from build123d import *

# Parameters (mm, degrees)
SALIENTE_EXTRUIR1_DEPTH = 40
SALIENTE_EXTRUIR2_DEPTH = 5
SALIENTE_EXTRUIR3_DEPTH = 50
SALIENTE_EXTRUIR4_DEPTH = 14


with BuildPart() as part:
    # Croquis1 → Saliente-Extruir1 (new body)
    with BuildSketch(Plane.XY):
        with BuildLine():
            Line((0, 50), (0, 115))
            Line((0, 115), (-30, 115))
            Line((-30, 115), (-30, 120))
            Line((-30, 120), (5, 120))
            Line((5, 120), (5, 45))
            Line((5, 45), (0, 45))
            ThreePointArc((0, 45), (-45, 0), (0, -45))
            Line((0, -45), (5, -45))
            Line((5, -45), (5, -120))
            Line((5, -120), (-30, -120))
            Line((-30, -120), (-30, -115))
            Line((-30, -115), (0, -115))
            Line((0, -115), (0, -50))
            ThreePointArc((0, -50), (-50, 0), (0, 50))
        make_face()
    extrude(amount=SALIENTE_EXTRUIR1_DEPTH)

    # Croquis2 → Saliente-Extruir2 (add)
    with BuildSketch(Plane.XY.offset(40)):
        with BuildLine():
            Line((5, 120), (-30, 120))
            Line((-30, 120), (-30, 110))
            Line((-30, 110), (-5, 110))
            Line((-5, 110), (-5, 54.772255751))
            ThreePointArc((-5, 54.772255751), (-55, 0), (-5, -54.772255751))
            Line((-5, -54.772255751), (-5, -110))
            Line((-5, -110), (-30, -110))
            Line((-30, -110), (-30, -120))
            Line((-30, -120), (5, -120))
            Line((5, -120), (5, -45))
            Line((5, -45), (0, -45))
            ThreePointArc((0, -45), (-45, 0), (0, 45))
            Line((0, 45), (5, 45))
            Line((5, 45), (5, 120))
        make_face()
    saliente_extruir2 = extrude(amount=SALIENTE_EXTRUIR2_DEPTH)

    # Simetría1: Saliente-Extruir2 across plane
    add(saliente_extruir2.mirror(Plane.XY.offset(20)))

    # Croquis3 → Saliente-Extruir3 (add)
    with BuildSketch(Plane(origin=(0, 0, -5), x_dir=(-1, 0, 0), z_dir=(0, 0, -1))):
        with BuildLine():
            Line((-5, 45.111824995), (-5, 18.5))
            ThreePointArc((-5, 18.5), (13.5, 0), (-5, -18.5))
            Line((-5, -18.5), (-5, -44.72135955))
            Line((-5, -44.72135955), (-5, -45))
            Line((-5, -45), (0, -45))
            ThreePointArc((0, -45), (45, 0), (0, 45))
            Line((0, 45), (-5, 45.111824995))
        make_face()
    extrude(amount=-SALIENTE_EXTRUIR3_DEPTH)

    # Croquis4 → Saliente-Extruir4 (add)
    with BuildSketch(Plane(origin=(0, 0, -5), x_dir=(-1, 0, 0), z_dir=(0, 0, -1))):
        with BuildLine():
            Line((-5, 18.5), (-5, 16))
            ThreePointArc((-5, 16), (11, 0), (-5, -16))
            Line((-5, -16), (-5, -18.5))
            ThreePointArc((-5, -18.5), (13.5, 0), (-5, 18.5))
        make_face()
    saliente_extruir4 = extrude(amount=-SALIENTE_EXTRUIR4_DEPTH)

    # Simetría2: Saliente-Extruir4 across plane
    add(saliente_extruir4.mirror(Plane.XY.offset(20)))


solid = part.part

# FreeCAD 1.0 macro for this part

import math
import FreeCAD as App
import Part
import Sketcher

V = App.Vector

doc = App.newDocument("Part")
body = doc.addObject("PartDesign::Body", "Body")

sketch1 = body.newObject("Sketcher::SketchObject", "Sketch")
sketch1.AttachmentSupport = (doc.getObject("XY_Plane"), [""])
sketch1.MapMode = "FlatFace"
sketch1.addGeometry(Part.LineSegment(V(0, 115, 0), V(0, 50, 0)), False)
sketch1.addGeometry(Part.ArcOfCircle(Part.Circle(V(0, 0, 0), V(0, 0, 1), 50), math.radians(90), math.radians(270)), False)
sketch1.addGeometry(Part.LineSegment(V(0, -50, 0), V(0, -115, 0)), False)
sketch1.addGeometry(Part.LineSegment(V(0, -115, 0), V(-30, -115, 0)), False)
sketch1.addGeometry(Part.LineSegment(V(-30, -115, 0), V(-30, -120, 0)), False)
sketch1.addGeometry(Part.LineSegment(V(-30, -120, 0), V(5, -120, 0)), False)
sketch1.addGeometry(Part.LineSegment(V(5, -120, 0), V(5, -45, 0)), False)
sketch1.addGeometry(Part.LineSegment(V(5, -45, 0), V(0, -45, 0)), False)
sketch1.addGeometry(Part.ArcOfCircle(Part.Circle(V(0, 0, 0), V(0, 0, 1), 45), math.radians(90), math.radians(270)), False)
sketch1.addGeometry(Part.LineSegment(V(0, 45, 0), V(5, 45, 0)), False)
sketch1.addGeometry(Part.LineSegment(V(5, 45, 0), V(5, 120, 0)), False)
sketch1.addGeometry(Part.LineSegment(V(5, 120, 0), V(-30, 120, 0)), False)
sketch1.addGeometry(Part.LineSegment(V(-30, 120, 0), V(-30, 115, 0)), False)
sketch1.addGeometry(Part.LineSegment(V(-30, 115, 0), V(0, 115, 0)), False)
sketch1.addConstraint(Sketcher.Constraint("Coincident", 0, 2, 1, 1))
sketch1.addConstraint(Sketcher.Constraint("Coincident", 1, 2, 2, 1))
sketch1.addConstraint(Sketcher.Constraint("Coincident", 2, 2, 3, 1))
sketch1.addConstraint(Sketcher.Constraint("Coincident", 3, 2, 4, 1))
sketch1.addConstraint(Sketcher.Constraint("Coincident", 4, 2, 5, 1))
sketch1.addConstraint(Sketcher.Constraint("Coincident", 5, 2, 6, 1))
sketch1.addConstraint(Sketcher.Constraint("Coincident", 6, 2, 7, 1))
sketch1.addConstraint(Sketcher.Constraint("Tangent", 7, 2, 8, 2))
sketch1.addConstraint(Sketcher.Constraint("Tangent", 8, 1, 9, 1))
sketch1.addConstraint(Sketcher.Constraint("Coincident", 9, 2, 10, 1))
sketch1.addConstraint(Sketcher.Constraint("Coincident", 10, 2, 11, 1))
sketch1.addConstraint(Sketcher.Constraint("Coincident", 11, 2, 12, 1))
sketch1.addConstraint(Sketcher.Constraint("Coincident", 12, 2, 13, 1))
sketch1.addConstraint(Sketcher.Constraint("Coincident", 13, 2, 0, 1))
sketch1.addConstraint(Sketcher.Constraint("Vertical", 0))
sketch1.addConstraint(Sketcher.Constraint("Vertical", 2))
sketch1.addConstraint(Sketcher.Constraint("Horizontal", 3))
sketch1.addConstraint(Sketcher.Constraint("Vertical", 4))
sketch1.addConstraint(Sketcher.Constraint("Horizontal", 5))
sketch1.addConstraint(Sketcher.Constraint("Vertical", 6))
sketch1.addConstraint(Sketcher.Constraint("Horizontal", 7))
sketch1.addConstraint(Sketcher.Constraint("Horizontal", 9))
sketch1.addConstraint(Sketcher.Constraint("Vertical", 10))
sketch1.addConstraint(Sketcher.Constraint("Horizontal", 11))
sketch1.addConstraint(Sketcher.Constraint("Vertical", 12))
sketch1.addConstraint(Sketcher.Constraint("Horizontal", 13))
sketch1.addConstraint(Sketcher.Constraint("Coincident", 1, 3, -1, 1))
sketch1.addConstraint(Sketcher.Constraint("Coincident", 8, 3, -1, 1))
sketch1.addConstraint(Sketcher.Constraint("Symmetric", 2, 2, 13, 2, -1, 1))
sketch1.addConstraint(Sketcher.Constraint("Symmetric", 5, 2, 10, 2, -1))
sketch1.addConstraint(Sketcher.Constraint("PointOnObject", 0, 2, -2))
sketch1.addConstraint(Sketcher.Constraint("Vertical", 4, 2, 11, 2))
sketch1.addConstraint(Sketcher.Constraint("Equal", 9, 4))
sketch1.addConstraint(Sketcher.Constraint("Radius", 1, 50.0))
sketch1.addConstraint(Sketcher.Constraint("Radius", 8, 45.0))
sketch1.addConstraint(Sketcher.Constraint("DistanceX", 3, 2, 3, 1, 30.0))
sketch1.addConstraint(Sketcher.Constraint("DistanceX", 5, 1, 5, 2, 35.0))
sketch1.addConstraint(Sketcher.Constraint("DistanceY", 0, 2, 0, 1, 65.0))
pad1 = body.newObject("PartDesign::Pad", "Pad")
pad1.Profile = sketch1
pad1.Length = 40

sketch2 = body.newObject("Sketcher::SketchObject", "Sketch001")
sketch2.AttachmentSupport = (doc.getObject("XY_Plane"), [""])
sketch2.MapMode = "FlatFace"
sketch2.AttachmentOffset = App.Placement(V(0, 0, 40), App.Rotation())
sketch2.addGeometry(Part.LineSegment(V(5, 120, 0), V(-30, 120, 0)), False)
sketch2.addGeometry(Part.LineSegment(V(-30, 120, 0), V(-30, 110, 0)), False)
sketch2.addGeometry(Part.LineSegment(V(-30, 110, 0), V(-5, 110, 0)), False)
sketch2.addGeometry(Part.LineSegment(V(-5, 110, 0), V(-5, 55, 0)), False)
sketch2.addGeometry(Part.ArcOfCircle(Part.Circle(V(0, 0, 0), V(0, 0, 1), 55), math.radians(95), math.radians(265)), False)
sketch2.addGeometry(Part.LineSegment(V(-5, -55, 0), V(-5, -110, 0)), False)
sketch2.addGeometry(Part.LineSegment(V(-5, -110, 0), V(-30, -110, 0)), False)
sketch2.addGeometry(Part.LineSegment(V(-30, -110, 0), V(-30, -120, 0)), False)
sketch2.addGeometry(Part.LineSegment(V(-30, -120, 0), V(5, -120, 0)), False)
sketch2.addGeometry(Part.LineSegment(V(5, -120, 0), V(5, -45, 0)), False)
sketch2.addGeometry(Part.LineSegment(V(5, -45, 0), V(0, -45, 0)), False)
sketch2.addGeometry(Part.ArcOfCircle(Part.Circle(V(0, 0, 0), V(0, 0, 1), 45), math.radians(90), math.radians(270)), False)
sketch2.addGeometry(Part.LineSegment(V(0, 45, 0), V(5, 45, 0)), False)
sketch2.addGeometry(Part.LineSegment(V(5, 45, 0), V(5, 120, 0)), False)
sketch2.addConstraint(Sketcher.Constraint("Coincident", 0, 2, 1, 1))
sketch2.addConstraint(Sketcher.Constraint("Coincident", 1, 2, 2, 1))
sketch2.addConstraint(Sketcher.Constraint("Coincident", 2, 2, 3, 1))
sketch2.addConstraint(Sketcher.Constraint("Coincident", 3, 2, 4, 1))
sketch2.addConstraint(Sketcher.Constraint("Coincident", 4, 2, 5, 1))
sketch2.addConstraint(Sketcher.Constraint("Coincident", 5, 2, 6, 1))
sketch2.addConstraint(Sketcher.Constraint("Coincident", 6, 2, 7, 1))
sketch2.addConstraint(Sketcher.Constraint("Coincident", 7, 2, 8, 1))
sketch2.addConstraint(Sketcher.Constraint("Coincident", 8, 2, 9, 1))
sketch2.addConstraint(Sketcher.Constraint("Coincident", 9, 2, 10, 1))
sketch2.addConstraint(Sketcher.Constraint("Tangent", 10, 2, 11, 2))
sketch2.addConstraint(Sketcher.Constraint("Tangent", 11, 1, 12, 1))
sketch2.addConstraint(Sketcher.Constraint("Coincident", 12, 2, 13, 1))
sketch2.addConstraint(Sketcher.Constraint("Coincident", 13, 2, 0, 1))
sketch2.addConstraint(Sketcher.Constraint("Horizontal", 0))
sketch2.addConstraint(Sketcher.Constraint("Vertical", 1))
sketch2.addConstraint(Sketcher.Constraint("Horizontal", 2))
sketch2.addConstraint(Sketcher.Constraint("Vertical", 3))
sketch2.addConstraint(Sketcher.Constraint("Vertical", 5))
sketch2.addConstraint(Sketcher.Constraint("Horizontal", 6))
sketch2.addConstraint(Sketcher.Constraint("Vertical", 7))
sketch2.addConstraint(Sketcher.Constraint("Horizontal", 8))
sketch2.addConstraint(Sketcher.Constraint("Vertical", 9))
sketch2.addConstraint(Sketcher.Constraint("Horizontal", 10))
sketch2.addConstraint(Sketcher.Constraint("Horizontal", 12))
sketch2.addConstraint(Sketcher.Constraint("Vertical", 13))
sketch2.addConstraint(Sketcher.Constraint("Coincident", 4, 3, -1, 1))
sketch2.addConstraint(Sketcher.Constraint("Coincident", 11, 3, -1, 1))
sketch2.addConstraint(Sketcher.Constraint("Symmetric", 2, 2, 5, 2, -1))
sketch2.addConstraint(Sketcher.Constraint("Symmetric", 0, 2, 7, 2, -1))
sketch2.addConstraint(Sketcher.Constraint("Vertical", 9, 2, 12, 2))
sketch2.addConstraint(Sketcher.Constraint("Radius", 4, 55.0))
sketch2.addConstraint(Sketcher.Constraint("Radius", 11, 45.0))
sketch2.addConstraint(Sketcher.Constraint("DistanceX", 0, 2, 0, 1, 35.0))
sketch2.addConstraint(Sketcher.Constraint("DistanceX", 2, 1, 2, 2, 25.0))
sketch2.addConstraint(Sketcher.Constraint("DistanceX", 10, 2, 10, 1, 5.0))
sketch2.addConstraint(Sketcher.Constraint("DistanceY", 1, 2, 1, 1, 10.0))
sketch2.addConstraint(Sketcher.Constraint("DistanceY", 9, 1, 9, 2, 75.0))
pad2 = body.newObject("PartDesign::Pad", "Pad001")
pad2.Profile = sketch2
pad2.Length = 5
doc.recompute()

datumplane = body.newObject("PartDesign::Plane", "DatumPlane")
datumplane.AttachmentSupport = (doc.getObject("XY_Plane"), [""])
datumplane.MapMode = "FlatFace"
datumplane.AttachmentOffset = App.Placement(V(0, 0, 20), App.Rotation())
mirrored = body.newObject("PartDesign::Mirrored", "Mirrored")
mirrored.Originals = [pad2]
mirrored.MirrorPlane = (datumplane, [""])
body.Tip = mirrored

sketch3 = body.newObject("Sketcher::SketchObject", "Sketch002")
sketch3.AttachmentSupport = (doc.getObject("XY_Plane"), [""])
sketch3.MapMode = "FlatFace"
sketch3.AttachmentOffset = App.Placement(V(0, 0, -5), App.Rotation())
sketch3.addGeometry(Part.LineSegment(V(5, 45.111825, 0), V(5, 18.5, 0)), False)
sketch3.addGeometry(Part.ArcOfCircle(Part.Circle(V(5, 0, 0), V(0, 0, 1), 18.5), math.radians(90), math.radians(270)), False)
sketch3.addGeometry(Part.LineSegment(V(5, -18.5, 0), V(5, -45, 0)), False)
sketch3.addGeometry(Part.LineSegment(V(5, -45, 0), V(0, -45, 0)), False)
sketch3.addGeometry(Part.ArcOfCircle(Part.Circle(V(0, 0, 0), V(0, 0, 1), 45), math.radians(90), math.radians(270)), False)
sketch3.addGeometry(Part.LineSegment(V(0, 45, 0), V(5, 45.111825, 0)), False)
sketch3.addConstraint(Sketcher.Constraint("Coincident", 0, 2, 1, 1))
sketch3.addConstraint(Sketcher.Constraint("Coincident", 1, 2, 2, 1))
sketch3.addConstraint(Sketcher.Constraint("Coincident", 2, 2, 3, 1))
sketch3.addConstraint(Sketcher.Constraint("Tangent", 3, 2, 4, 2))
sketch3.addConstraint(Sketcher.Constraint("Coincident", 4, 1, 5, 1))
sketch3.addConstraint(Sketcher.Constraint("Coincident", 5, 2, 0, 1))
sketch3.addConstraint(Sketcher.Constraint("Vertical", 0))
sketch3.addConstraint(Sketcher.Constraint("Vertical", 2))
sketch3.addConstraint(Sketcher.Constraint("Horizontal", 3))
sketch3.addConstraint(Sketcher.Constraint("Coincident", 4, 3, -1, 1))
sketch3.addConstraint(Sketcher.Constraint("Symmetric", 0, 2, 1, 2, -1))
sketch3.addConstraint(Sketcher.Constraint("PointOnObject", 4, 1, -2))
sketch3.addConstraint(Sketcher.Constraint("Vertical", 1, 3, 0, 2))
sketch3.addConstraint(Sketcher.Constraint("Radius", 4, 45.0))
sketch3.addConstraint(Sketcher.Constraint("Radius", 1, 18.5))
sketch3.addConstraint(Sketcher.Constraint("DistanceX", 3, 2, 3, 1, 5.0))
sketch3.addConstraint(Sketcher.Constraint("Distance", 5, 5.00125))
pad3 = body.newObject("PartDesign::Pad", "Pad002")
pad3.Profile = sketch3
pad3.Length = 50

sketch4 = body.newObject("Sketcher::SketchObject", "Sketch003")
sketch4.AttachmentSupport = (doc.getObject("XY_Plane"), [""])
sketch4.MapMode = "FlatFace"
sketch4.AttachmentOffset = App.Placement(V(0, 0, -5), App.Rotation())
sketch4.addGeometry(Part.LineSegment(V(5, 18.5, 0), V(5, 16, 0)), False)
sketch4.addGeometry(Part.ArcOfCircle(Part.Circle(V(5, 0, 0), V(0, 0, 1), 16), math.radians(90), math.radians(270)), False)
sketch4.addGeometry(Part.LineSegment(V(5, -16, 0), V(5, -18.5, 0)), False)
sketch4.addGeometry(Part.ArcOfCircle(Part.Circle(V(5, 0, 0), V(0, 0, 1), 18.5), math.radians(90), math.radians(270)), False)
sketch4.addConstraint(Sketcher.Constraint("Coincident", 0, 2, 1, 1))
sketch4.addConstraint(Sketcher.Constraint("Coincident", 1, 2, 2, 1))
sketch4.addConstraint(Sketcher.Constraint("Coincident", 2, 2, 3, 2))
sketch4.addConstraint(Sketcher.Constraint("Coincident", 3, 1, 0, 1))
sketch4.addConstraint(Sketcher.Constraint("Vertical", 0))
sketch4.addConstraint(Sketcher.Constraint("Vertical", 2))
sketch4.addConstraint(Sketcher.Constraint("Coincident", 3, 3, 1, 3))
sketch4.addConstraint(Sketcher.Constraint("Symmetric", 0, 2, 1, 2, -1))
sketch4.addConstraint(Sketcher.Constraint("Vertical", 3, 3, 0, 2))
sketch4.addConstraint(Sketcher.Constraint("Radius", 1, 16.0))
sketch4.addConstraint(Sketcher.Constraint("Radius", 3, 18.5))
sketch4.addConstraint(Sketcher.Constraint("DistanceX", -1, 1, 1, 3, 5.0))
pad4 = body.newObject("PartDesign::Pad", "Pad003")
pad4.Profile = sketch4
pad4.Length = 14
doc.recompute()

datumplane2 = body.newObject("PartDesign::Plane", "DatumPlane001")
datumplane2.AttachmentSupport = (doc.getObject("XY_Plane"), [""])
datumplane2.MapMode = "FlatFace"
datumplane2.AttachmentOffset = App.Placement(V(0, 0, 20), App.Rotation())
mirrored2 = body.newObject("PartDesign::Mirrored", "Mirrored001")
mirrored2.Originals = [pad4]
mirrored2.MirrorPlane = (datumplane2, [""])
body.Tip = mirrored2

doc.recompute()
